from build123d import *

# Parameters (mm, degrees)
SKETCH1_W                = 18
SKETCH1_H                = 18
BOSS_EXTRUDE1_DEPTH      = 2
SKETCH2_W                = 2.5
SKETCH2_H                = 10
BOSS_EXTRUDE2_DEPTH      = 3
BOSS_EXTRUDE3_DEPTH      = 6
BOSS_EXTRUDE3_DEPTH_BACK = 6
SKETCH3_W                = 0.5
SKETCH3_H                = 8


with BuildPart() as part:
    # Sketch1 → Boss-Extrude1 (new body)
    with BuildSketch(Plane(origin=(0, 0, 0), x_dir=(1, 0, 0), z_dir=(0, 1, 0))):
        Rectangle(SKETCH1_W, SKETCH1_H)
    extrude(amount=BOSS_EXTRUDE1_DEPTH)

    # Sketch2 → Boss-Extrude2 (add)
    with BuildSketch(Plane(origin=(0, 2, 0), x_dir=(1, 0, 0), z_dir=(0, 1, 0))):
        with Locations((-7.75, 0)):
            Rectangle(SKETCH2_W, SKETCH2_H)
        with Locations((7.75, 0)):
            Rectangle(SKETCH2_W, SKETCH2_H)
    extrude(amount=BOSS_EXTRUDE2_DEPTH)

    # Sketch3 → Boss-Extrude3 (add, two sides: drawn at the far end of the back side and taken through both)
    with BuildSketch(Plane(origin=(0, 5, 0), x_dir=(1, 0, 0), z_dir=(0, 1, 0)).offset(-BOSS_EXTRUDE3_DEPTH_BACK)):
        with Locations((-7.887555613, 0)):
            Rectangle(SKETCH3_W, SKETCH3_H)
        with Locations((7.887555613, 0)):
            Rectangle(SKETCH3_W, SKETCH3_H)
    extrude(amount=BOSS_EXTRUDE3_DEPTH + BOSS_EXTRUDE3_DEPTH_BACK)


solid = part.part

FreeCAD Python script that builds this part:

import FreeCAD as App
import Part
import Sketcher


def add_polygon(sketch, points):
    """Adds a closed chain of lines whose ends are joined by coincident constraints."""
    first, n = sketch.GeometryCount, len(points)
    for a, b in zip(points, points[1:] + points[:1]):
        sketch.addGeometry(Part.LineSegment(App.Vector(*a, 0), App.Vector(*b, 0)), False)
    for i in range(n):
        sketch.addConstraint(Sketcher.Constraint("Coincident", first + i, 2, first + (i + 1) % n, 1))

doc = App.newDocument("Part")
body = doc.addObject("PartDesign::Body", "Body")

sketch1 = doc.addObject("Sketcher::SketchObject", "Sketch")
body.addObject(sketch1)
sketch1.AttachmentSupport = (doc.XZ_Plane, [""])
sketch1.MapMode = "FlatFace"
add_polygon(sketch1, [(-9, -9), (-9, 9), (9, 9), (9, -9)])
sketch1.addConstraint([
    Sketcher.Constraint("Vertical", 0),
    Sketcher.Constraint("Horizontal", 1),
    Sketcher.Constraint("Vertical", 2),
    Sketcher.Constraint("Horizontal", 3),
    Sketcher.Constraint("Symmetric", 0, 2, 2, 2, -1, 1),
    Sketcher.Constraint("Equal", 3, 0),
    Sketcher.Constraint("DistanceX", 1, 1, 1, 2, 18.0),
])
pad1 = doc.addObject("PartDesign::Pad", "Pad")
body.addObject(pad1)
pad1.Profile = sketch1
pad1.Length = 2
pad1.Reversed = True

sketch2 = doc.addObject("Sketcher::SketchObject", "Sketch001")
body.addObject(sketch2)
sketch2.AttachmentSupport = (doc.XZ_Plane, [""])
sketch2.MapMode = "FlatFace"
sketch2.AttachmentOffset = App.Placement(App.Vector(0, 0, -2), App.Rotation())
add_polygon(sketch2, [(-9, -5), (-9, 5), (-6.5, 5), (-6.5, -5)])
add_polygon(sketch2, [(6.5, -5), (6.5, 5), (9, 5), (9, -5)])
sketch2.addConstraint([
    Sketcher.Constraint("Vertical", 0),
    Sketcher.Constraint("Horizontal", 1),
    Sketcher.Constraint("Vertical", 2),
    Sketcher.Constraint("Horizontal", 3),
    Sketcher.Constraint("Vertical", 4),
    Sketcher.Constraint("Horizontal", 5),
    Sketcher.Constraint("Vertical", 6),
    Sketcher.Constraint("Horizontal", 7),
    Sketcher.Constraint("Symmetric", 2, 2, 4, 2, -1, 1),
    Sketcher.Constraint("Symmetric", 0, 2, 6, 2, -1, 1),
    Sketcher.Constraint("Horizontal", 1, 2, 4, 2),
    Sketcher.Constraint("DistanceY", 0, 1, 0, 2, 10.0),
    Sketcher.Constraint("DistanceX", 1, 1, 1, 2, 2.5),
    Sketcher.Constraint("DistanceX", 0, 2, -1, 1, 9.0),
])
pad2 = doc.addObject("PartDesign::Pad", "Pad001")
body.addObject(pad2)
pad2.Profile = sketch2
pad2.Length = 3
pad2.Reversed = True

sketch3 = doc.addObject("Sketcher::SketchObject", "Sketch002")
body.addObject(sketch3)
sketch3.AttachmentSupport = (doc.XZ_Plane, [""])
sketch3.MapMode = "FlatFace"
sketch3.AttachmentOffset = App.Placement(App.Vector(0, 0, -5), App.Rotation())
add_polygon(sketch3, [(-8.1, -4), (-8.1, 4), (-7.6, 4), (-7.6, -4)])
add_polygon(sketch3, [(7.6, -4), (7.6, 4), (8.1, 4), (8.1, -4)])
sketch3.addConstraint([
    Sketcher.Constraint("Vertical", 0),
    Sketcher.Constraint("Horizontal", 1),
    Sketcher.Constraint("Vertical", 2),
    Sketcher.Constraint("Horizontal", 3),
    Sketcher.Constraint("Vertical", 4),
    Sketcher.Constraint("Horizontal", 5),
    Sketcher.Constraint("Vertical", 6),
    Sketcher.Constraint("Horizontal", 7),
    Sketcher.Constraint("Symmetric", 2, 2, 4, 2, -1, 1),
    Sketcher.Constraint("Symmetric", 0, 2, 6, 2, -1, 1),
    Sketcher.Constraint("Horizontal", 1, 2, 4, 2),
    Sketcher.Constraint("DistanceY", 0, 1, 0, 2, 8.0),
    Sketcher.Constraint("DistanceX", 1, 1, 1, 2, 0.5),
    Sketcher.Constraint("DistanceX", 1, 2, 4, 2, 15.275111),
])
pad3 = doc.addObject("PartDesign::Pad", "Pad002")
body.addObject(pad3)
pad3.Profile = sketch3
pad3.Type = "TwoLengths"
pad3.Length = 6
pad3.Length2 = 6
pad3.Reversed = True

doc.recompute()
